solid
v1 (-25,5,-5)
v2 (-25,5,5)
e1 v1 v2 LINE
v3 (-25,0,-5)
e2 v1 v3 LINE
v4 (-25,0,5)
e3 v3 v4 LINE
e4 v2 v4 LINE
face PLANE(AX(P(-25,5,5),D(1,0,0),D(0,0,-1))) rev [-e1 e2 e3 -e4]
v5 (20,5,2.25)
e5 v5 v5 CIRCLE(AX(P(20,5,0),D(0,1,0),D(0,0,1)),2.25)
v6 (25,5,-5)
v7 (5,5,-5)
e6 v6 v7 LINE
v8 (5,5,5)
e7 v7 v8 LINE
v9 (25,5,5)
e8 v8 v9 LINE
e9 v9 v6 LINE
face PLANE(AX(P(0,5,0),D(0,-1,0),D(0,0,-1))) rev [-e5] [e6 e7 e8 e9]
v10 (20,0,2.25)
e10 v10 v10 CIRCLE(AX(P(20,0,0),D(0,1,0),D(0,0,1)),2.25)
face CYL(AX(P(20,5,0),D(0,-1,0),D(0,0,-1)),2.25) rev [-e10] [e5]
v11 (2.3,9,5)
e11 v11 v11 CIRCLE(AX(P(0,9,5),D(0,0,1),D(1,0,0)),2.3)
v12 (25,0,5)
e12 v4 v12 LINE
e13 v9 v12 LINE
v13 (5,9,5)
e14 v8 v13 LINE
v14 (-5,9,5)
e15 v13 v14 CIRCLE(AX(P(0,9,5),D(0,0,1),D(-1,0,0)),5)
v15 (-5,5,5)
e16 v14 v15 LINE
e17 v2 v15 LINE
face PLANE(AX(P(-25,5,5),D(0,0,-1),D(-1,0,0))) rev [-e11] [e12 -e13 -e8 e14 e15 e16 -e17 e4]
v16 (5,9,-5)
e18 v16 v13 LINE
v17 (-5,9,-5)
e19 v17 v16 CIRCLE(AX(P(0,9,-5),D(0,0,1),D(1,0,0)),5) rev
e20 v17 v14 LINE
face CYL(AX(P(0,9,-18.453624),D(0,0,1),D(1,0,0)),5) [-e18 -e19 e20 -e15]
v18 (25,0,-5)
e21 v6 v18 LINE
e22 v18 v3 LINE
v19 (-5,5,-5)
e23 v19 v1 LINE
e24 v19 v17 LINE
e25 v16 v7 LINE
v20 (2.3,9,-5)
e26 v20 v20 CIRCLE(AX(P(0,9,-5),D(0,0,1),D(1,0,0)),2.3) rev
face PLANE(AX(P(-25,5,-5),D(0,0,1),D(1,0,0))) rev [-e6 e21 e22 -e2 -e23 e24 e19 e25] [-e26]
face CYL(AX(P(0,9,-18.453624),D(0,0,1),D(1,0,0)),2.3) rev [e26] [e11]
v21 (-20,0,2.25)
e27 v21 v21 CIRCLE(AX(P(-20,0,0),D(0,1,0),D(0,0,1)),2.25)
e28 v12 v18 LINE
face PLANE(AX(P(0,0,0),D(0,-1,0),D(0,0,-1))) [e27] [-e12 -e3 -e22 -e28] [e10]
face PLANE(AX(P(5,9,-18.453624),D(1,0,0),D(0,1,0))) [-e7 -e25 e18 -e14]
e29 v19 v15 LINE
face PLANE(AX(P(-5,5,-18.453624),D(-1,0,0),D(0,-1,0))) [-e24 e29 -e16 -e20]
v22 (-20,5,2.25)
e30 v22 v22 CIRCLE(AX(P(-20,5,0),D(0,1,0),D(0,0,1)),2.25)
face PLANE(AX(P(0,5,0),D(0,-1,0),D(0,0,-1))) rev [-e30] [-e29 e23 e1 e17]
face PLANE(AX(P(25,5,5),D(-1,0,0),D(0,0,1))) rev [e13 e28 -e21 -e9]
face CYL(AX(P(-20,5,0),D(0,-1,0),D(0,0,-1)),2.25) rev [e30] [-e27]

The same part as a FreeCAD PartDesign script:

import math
import FreeCAD as App
import Part
import Sketcher
from FreeCAD import Vector
Q = App.Units.Quantity

doc = App.newDocument("Part")
body = doc.addObject("PartDesign::Body", "Body")

sketch1 = body.newObject("Sketcher::SketchObject", "Sketch")
sketch1.AttachmentSupport = (doc.getObject("XZ_Plane"), [""])
sketch1.MapMode = "FlatFace"
sketch1.addGeometry([
    Part.LineSegment(Vector(-25, -5, 0), Vector(-25, 5, 0)),
    Part.LineSegment(Vector(-25, 5, 0), Vector(25, 5, 0)),
    Part.LineSegment(Vector(25, 5, 0), Vector(25, -5, 0)),
    Part.LineSegment(Vector(25, -5, 0), Vector(-25, -5, 0)),
    Part.Circle(Vector(-20, 0, 0), Vector(0, 0, 1), 2.2),
    Part.Circle(Vector(20, 0, 0), Vector(0, 0, 1), 2.2),
], False)
sketch1.addConstraint([
    Sketcher.Constraint("Coincident", 0, 2, 1, 1),
    Sketcher.Constraint("Coincident", 1, 2, 2, 1),
    Sketcher.Constraint("Coincident", 2, 2, 3, 1),
    Sketcher.Constraint("Coincident", 3, 2, 0, 1),
    Sketcher.Constraint("Vertical", 0),
    Sketcher.Constraint("Horizontal", 1),
    Sketcher.Constraint("Vertical", 2),
    Sketcher.Constraint("Horizontal", 3),
    Sketcher.Constraint("Equal", 4, 5),
    Sketcher.Constraint("Symmetric", 4, 3, 5, 3, -1, 1),
    Sketcher.Constraint("Symmetric", 0, 2, 2, 2, -1, 1),
    Sketcher.Constraint("PointOnObject", 4, 3, -1),
    Sketcher.Constraint("Diameter", 4, Q("4.5 mm")),
    Sketcher.Constraint("DistanceX", 1, 1, 1, 2, Q("50 mm")),
    Sketcher.Constraint("DistanceY", 0, 1, 0, 2, Q("10 mm")),
    Sketcher.Constraint("DistanceX", 4, 3, -1, 1, Q("20 mm")),
])
pad1 = body.newObject("PartDesign::Pad", "Pad")
pad1.Profile = sketch1
pad1.Length = 5
pad1.Reversed = True

sketch2 = body.newObject("Sketcher::SketchObject", "Sketch001")
sketch2.AttachmentSupport = (doc.getObject("XY_Plane"), [""])
sketch2.MapMode = "FlatFace"
sketch2.AttachmentOffset = App.Placement(Vector(0, 0, 5), App.Rotation())
sketch2.addGeometry([
    Part.LineSegment(Vector(-5, 9, 0), Vector(-5, 5, 0)),
    Part.LineSegment(Vector(-5, 5, 0), Vector(5, 5, 0)),
    Part.LineSegment(Vector(5, 5, 0), Vector(5, 9, 0)),
    Part.ArcOfCircle(Part.Circle(Vector(0, 9, 0), Vector(0, 0, 1), 5), math.radians(0), math.radians(180)),
    Part.Circle(Vector(0, 9, 0), Vector(0, 0, 1), 2.3),
], False)
sketch2.addConstraint([
    Sketcher.Constraint("Coincident", 0, 2, 1, 1),
    Sketcher.Constraint("Coincident", 1, 2, 2, 1),
    Sketcher.Constraint("Tangent", 2, 2, 3, 1),
    Sketcher.Constraint("Tangent", 3, 2, 0, 1),
    Sketcher.Constraint("Vertical", 0),
    Sketcher.Constraint("Horizontal", 1),
    Sketcher.Constraint("Vertical", 2),
    Sketcher.Constraint("Coincident", 4, 3, 3, 3),
    Sketcher.Constraint("PointOnObject", 3, 3, -2),
    Sketcher.Constraint("Radius", 3, Q("5 mm")),
    Sketcher.Constraint("Diameter", 4, Q("4.6 mm")),
    Sketcher.Constraint("DistanceY", 0, 2, 0, 1, Q("4 mm")),
    Sketcher.Constraint("DistanceY", -1, 1, 3, 3, Q("9 mm")),
])
pad2 = body.newObject("PartDesign::Pad", "Pad001")
pad2.Profile = sketch2
pad2.Length = 10
pad2.Reversed = True

doc.recompute()
